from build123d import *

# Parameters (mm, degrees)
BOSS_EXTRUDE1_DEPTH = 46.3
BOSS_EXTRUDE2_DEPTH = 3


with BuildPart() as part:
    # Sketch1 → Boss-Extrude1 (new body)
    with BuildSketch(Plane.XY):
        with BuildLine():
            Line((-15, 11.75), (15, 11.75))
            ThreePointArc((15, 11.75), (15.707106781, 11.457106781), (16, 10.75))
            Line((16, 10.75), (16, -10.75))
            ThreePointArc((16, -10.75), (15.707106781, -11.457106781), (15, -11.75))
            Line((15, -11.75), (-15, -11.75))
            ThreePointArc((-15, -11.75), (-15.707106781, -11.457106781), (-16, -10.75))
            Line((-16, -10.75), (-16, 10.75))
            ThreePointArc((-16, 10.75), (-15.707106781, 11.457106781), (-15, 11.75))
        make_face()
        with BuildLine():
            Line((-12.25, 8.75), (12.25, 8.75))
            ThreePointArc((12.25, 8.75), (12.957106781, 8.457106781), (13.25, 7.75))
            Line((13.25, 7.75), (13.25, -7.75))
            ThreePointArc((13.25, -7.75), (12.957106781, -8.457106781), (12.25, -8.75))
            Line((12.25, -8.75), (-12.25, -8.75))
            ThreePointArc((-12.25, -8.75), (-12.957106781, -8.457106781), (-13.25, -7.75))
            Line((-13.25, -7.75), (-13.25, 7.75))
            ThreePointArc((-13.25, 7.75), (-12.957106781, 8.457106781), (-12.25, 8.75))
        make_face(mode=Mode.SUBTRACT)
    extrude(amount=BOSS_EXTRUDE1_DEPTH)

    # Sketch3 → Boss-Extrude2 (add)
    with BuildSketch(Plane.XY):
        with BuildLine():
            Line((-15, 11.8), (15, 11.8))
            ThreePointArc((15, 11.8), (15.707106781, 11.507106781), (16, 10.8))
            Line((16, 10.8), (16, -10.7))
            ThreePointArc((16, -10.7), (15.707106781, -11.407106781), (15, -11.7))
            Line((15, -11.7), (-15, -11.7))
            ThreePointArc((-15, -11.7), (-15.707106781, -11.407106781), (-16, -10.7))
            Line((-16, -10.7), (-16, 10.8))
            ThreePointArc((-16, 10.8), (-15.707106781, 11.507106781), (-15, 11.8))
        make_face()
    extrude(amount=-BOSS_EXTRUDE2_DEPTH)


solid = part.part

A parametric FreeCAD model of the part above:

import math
import FreeCAD as App
import Part
import Sketcher

doc = App.newDocument("Part")
params = doc.addObject("Spreadsheet::Sheet", "Params")
for row, (alias, value) in enumerate([
    ("sketch1_radius", "1 mm"),
    ("sketch1_width", "30 mm"),
    ("sketch1_width2", "24.5 mm"),
    ("sketch1_height", "21.5 mm"),
    ("sketch1_height2", "15.5 mm"),
    ("pad1_length", "46.3 mm"),
    ("sketch2_radius", "1 mm"),
    ("sketch2_width", "30 mm"),
    ("sketch2_height", "21.5 mm"),
    ("pad2_length", "3 mm"),
], start=1):
    params.set(f"A{row}", alias)
    params.set(f"B{row}", "=" + value)
    params.setAlias(f"B{row}", alias)

body = doc.addObject("PartDesign::Body", "Body")

sketch1 = body.newObject("Sketcher::SketchObject", "Sketch")
sketch1.AttachmentSupport = (doc.getObject("XY_Plane"), [""])
sketch1.MapMode = "FlatFace"
sketch1.addGeometry(Part.LineSegment(App.Vector(15, 11.8, 0), App.Vector(-15, 11.8, 0)), False)
sketch1.addGeometry(Part.ArcOfCircle(Part.Circle(App.Vector(-15, 10.7, 0), App.Vector(0, 0, 1), 1), math.radians(90), math.radians(180)), False)
sketch1.addGeometry(Part.LineSegment(App.Vector(-16, 10.8, 0), App.Vector(-16, -10.8, 0)), False)
sketch1.addGeometry(Part.ArcOfCircle(Part.Circle(App.Vector(-15, -10.7, 0), App.Vector(0, 0, 1), 1), math.radians(-180), math.radians(-90)), False)
sketch1.addGeometry(Part.LineSegment(App.Vector(-15, -11.8, 0), App.Vector(15, -11.8, 0)), False)
sketch1.addGeometry(Part.ArcOfCircle(Part.Circle(App.Vector(15, -10.7, 0), App.Vector(0, 0, 1), 1), math.radians(-90), math.radians(0)), False)
sketch1.addGeometry(Part.LineSegment(App.Vector(16, -10.8, 0), App.Vector(16, 10.8, 0)), False)
sketch1.addGeometry(Part.ArcOfCircle(Part.Circle(App.Vector(15, 10.7, 0), App.Vector(0, 0, 1), 1), math.radians(0), math.radians(90)), False)
sketch1.addGeometry(Part.LineSegment(App.Vector(-12.2, 8.8, 0), App.Vector(12.2, 8.8, 0)), False)
sketch1.addGeometry(Part.ArcOfCircle(Part.Circle(App.Vector(12.2, 7.7, 0), App.Vector(0, 0, 1), 1), math.radians(0), math.radians(90)), False)
sketch1.addGeometry(Part.LineSegment(App.Vector(13.2, 7.8, 0), App.Vector(13.2, -7.8, 0)), False)
sketch1.addGeometry(Part.ArcOfCircle(Part.Circle(App.Vector(12.2, -7.7, 0), App.Vector(0, 0, 1), 1), math.radians(-90), math.radians(0)), False)
sketch1.addGeometry(Part.LineSegment(App.Vector(12.2, -8.8, 0), App.Vector(-12.2, -8.8, 0)), False)
sketch1.addGeometry(Part.ArcOfCircle(Part.Circle(App.Vector(-12.2, -7.7, 0), App.Vector(0, 0, 1), 1), math.radians(-180), math.radians(-90)), False)
sketch1.addGeometry(Part.LineSegment(App.Vector(-13.2, -7.8, 0), App.Vector(-13.2, 7.8, 0)), False)
sketch1.addGeometry(Part.ArcOfCircle(Part.Circle(App.Vector(-12.2, 7.7, 0), App.Vector(0, 0, 1), 1), math.radians(90), math.radians(180)), False)
sketch1.addConstraint(Sketcher.Constraint("Tangent", 0, 2, 1, 1))
sketch1.addConstraint(Sketcher.Constraint("Tangent", 1, 2, 2, 1))
sketch1.addConstraint(Sketcher.Constraint("Tangent", 2, 2, 3, 1))
sketch1.addConstraint(Sketcher.Constraint("Tangent", 3, 2, 4, 1))
sketch1.addConstraint(Sketcher.Constraint("Tangent", 4, 2, 5, 1))
sketch1.addConstraint(Sketcher.Constraint("Tangent", 5, 2, 6, 1))
sketch1.addConstraint(Sketcher.Constraint("Tangent", 6, 2, 7, 1))
sketch1.addConstraint(Sketcher.Constraint("Tangent", 7, 2, 0, 1))
sketch1.addConstraint(Sketcher.Constraint("Tangent", 8, 2, 9, 2))
sketch1.addConstraint(Sketcher.Constraint("Tangent", 9, 1, 10, 1))
sketch1.addConstraint(Sketcher.Constraint("Tangent", 10, 2, 11, 2))
sketch1.addConstraint(Sketcher.Constraint("Tangent", 11, 1, 12, 1))
sketch1.addConstraint(Sketcher.Constraint("Tangent", 12, 2, 13, 2))
sketch1.addConstraint(Sketcher.Constraint("Tangent", 13, 1, 14, 1))
sketch1.addConstraint(Sketcher.Constraint("Tangent", 14, 2, 15, 2))
sketch1.addConstraint(Sketcher.Constraint("Tangent", 15, 1, 8, 1))
sketch1.addConstraint(Sketcher.Constraint("Horizontal", 0))
sketch1.addConstraint(Sketcher.Constraint("Vertical", 2))
sketch1.addConstraint(Sketcher.Constraint("Horizontal", 4))
sketch1.addConstraint(Sketcher.Constraint("Vertical", 6))
sketch1.addConstraint(Sketcher.Constraint("Horizontal", 8))
sketch1.addConstraint(Sketcher.Constraint("Vertical", 10))
sketch1.addConstraint(Sketcher.Constraint("Horizontal", 12))
sketch1.addConstraint(Sketcher.Constraint("Vertical", 14))
sketch1.addConstraint(Sketcher.Constraint("Equal", 1, 3))
sketch1.addConstraint(Sketcher.Constraint("Equal", 3, 5))
sketch1.addConstraint(Sketcher.Constraint("Equal", 5, 7))
sketch1.addConstraint(Sketcher.Constraint("Equal", 7, 9))
sketch1.addConstraint(Sketcher.Constraint("Equal", 9, 11))
sketch1.addConstraint(Sketcher.Constraint("Equal", 11, 13))
sketch1.addConstraint(Sketcher.Constraint("Equal", 13, 15))
sketch1.addConstraint(Sketcher.Constraint("Symmetric", 1, 3, 5, 3, -1, 1))
sketch1.addConstraint(Sketcher.Constraint("Symmetric", 9, 3, 13, 3, -1, 1))
sketch1.addConstraint(Sketcher.Constraint("Radius", 1, 1.0))
sketch1.addConstraint(Sketcher.Constraint("DistanceX", 0, 2, 0, 1, 30.0))
sketch1.addConstraint(Sketcher.Constraint("DistanceX", 8, 1, 8, 2, 24.5))
sketch1.addConstraint(Sketcher.Constraint("DistanceY", 2, 2, 2, 1, 21.5))
sketch1.addConstraint(Sketcher.Constraint("DistanceY", 10, 2, 10, 1, 15.5))
sketch1.setExpression("Constraints[33]", "Params.sketch1_radius")
sketch1.setExpression("Constraints[34]", "Params.sketch1_width")
sketch1.setExpression("Constraints[35]", "Params.sketch1_width2")
sketch1.setExpression("Constraints[36]", "Params.sketch1_height")
sketch1.setExpression("Constraints[37]", "Params.sketch1_height2")
pad1 = body.newObject("PartDesign::Pad", "Pad")
pad1.Profile = sketch1
pad1.setExpression("Length", "Params.pad1_length")

sketch2 = body.newObject("Sketcher::SketchObject", "Sketch001")
sketch2.AttachmentSupport = (doc.getObject("XY_Plane"), [""])
sketch2.MapMode = "FlatFace"
sketch2.addGeometry(Part.LineSegment(App.Vector(15, 11.8, 0), App.Vector(-15, 11.8, 0)), False)
sketch2.addGeometry(Part.ArcOfCircle(Part.Circle(App.Vector(-15, 10.8, 0), App.Vector(0, 0, 1), 1), math.radians(90), math.radians(180)), False)
sketch2.addGeometry(Part.LineSegment(App.Vector(-16, 10.8, 0), App.Vector(-16, -10.7, 0)), False)
sketch2.addGeometry(Part.ArcOfCircle(Part.Circle(App.Vector(-15, -10.7, 0), App.Vector(0, 0, 1), 1), math.radians(-180), math.radians(-90)), False)
sketch2.addGeometry(Part.LineSegment(App.Vector(-15, -11.7, 0), App.Vector(15, -11.7, 0)), False)
sketch2.addGeometry(Part.ArcOfCircle(Part.Circle(App.Vector(15, -10.7, 0), App.Vector(0, 0, 1), 1), math.radians(-90), math.radians(0)), False)
sketch2.addGeometry(Part.LineSegment(App.Vector(16, -10.7, 0), App.Vector(16, 10.8, 0)), False)
sketch2.addGeometry(Part.ArcOfCircle(Part.Circle(App.Vector(15, 10.8, 0), App.Vector(0, 0, 1), 1), math.radians(0), math.radians(90)), False)
sketch2.addConstraint(Sketcher.Constraint("Tangent", 0, 2, 1, 1))
sketch2.addConstraint(Sketcher.Constraint("Tangent", 1, 2, 2, 1))
sketch2.addConstraint(Sketcher.Constraint("Tangent", 2, 2, 3, 1))
sketch2.addConstraint(Sketcher.Constraint("Tangent", 3, 2, 4, 1))
sketch2.addConstraint(Sketcher.Constraint("Tangent", 4, 2, 5, 1))
sketch2.addConstraint(Sketcher.Constraint("Tangent", 5, 2, 6, 1))
sketch2.addConstraint(Sketcher.Constraint("Tangent", 6, 2, 7, 1))
sketch2.addConstraint(Sketcher.Constraint("Tangent", 7, 2, 0, 1))
sketch2.addConstraint(Sketcher.Constraint("Horizontal", 0))
sketch2.addConstraint(Sketcher.Constraint("Vertical", 2))
sketch2.addConstraint(Sketcher.Constraint("Horizontal", 4))
sketch2.addConstraint(Sketcher.Constraint("Vertical", 6))
sketch2.addConstraint(Sketcher.Constraint("Equal", 1, 3))
sketch2.addConstraint(Sketcher.Constraint("Equal", 3, 5))
sketch2.addConstraint(Sketcher.Constraint("Equal", 5, 7))
sketch2.addConstraint(Sketcher.Constraint("Radius", 1, 1.0))
sketch2.addConstraint(Sketcher.Constraint("DistanceX", 0, 2, 0, 1, 30.0))
sketch2.addConstraint(Sketcher.Constraint("DistanceY", 2, 2, 2, 1, 21.5))
sketch2.addConstraint(Sketcher.Constraint("DistanceX", 1, 3, -1, 1, 15.0))
sketch2.addConstraint(Sketcher.Constraint("DistanceY", -1, 1, 1, 3, 10.8))
sketch2.setExpression("Constraints[15]", "Params.sketch2_radius")
sketch2.setExpression("Constraints[16]", "Params.sketch2_width")
sketch2.setExpression("Constraints[17]", "Params.sketch2_height")
pad2 = body.newObject("PartDesign::Pad", "Pad001")
pad2.Profile = sketch2
pad2.setExpression("Length", "Params.pad2_length")
pad2.Reversed = True

doc.recompute()
